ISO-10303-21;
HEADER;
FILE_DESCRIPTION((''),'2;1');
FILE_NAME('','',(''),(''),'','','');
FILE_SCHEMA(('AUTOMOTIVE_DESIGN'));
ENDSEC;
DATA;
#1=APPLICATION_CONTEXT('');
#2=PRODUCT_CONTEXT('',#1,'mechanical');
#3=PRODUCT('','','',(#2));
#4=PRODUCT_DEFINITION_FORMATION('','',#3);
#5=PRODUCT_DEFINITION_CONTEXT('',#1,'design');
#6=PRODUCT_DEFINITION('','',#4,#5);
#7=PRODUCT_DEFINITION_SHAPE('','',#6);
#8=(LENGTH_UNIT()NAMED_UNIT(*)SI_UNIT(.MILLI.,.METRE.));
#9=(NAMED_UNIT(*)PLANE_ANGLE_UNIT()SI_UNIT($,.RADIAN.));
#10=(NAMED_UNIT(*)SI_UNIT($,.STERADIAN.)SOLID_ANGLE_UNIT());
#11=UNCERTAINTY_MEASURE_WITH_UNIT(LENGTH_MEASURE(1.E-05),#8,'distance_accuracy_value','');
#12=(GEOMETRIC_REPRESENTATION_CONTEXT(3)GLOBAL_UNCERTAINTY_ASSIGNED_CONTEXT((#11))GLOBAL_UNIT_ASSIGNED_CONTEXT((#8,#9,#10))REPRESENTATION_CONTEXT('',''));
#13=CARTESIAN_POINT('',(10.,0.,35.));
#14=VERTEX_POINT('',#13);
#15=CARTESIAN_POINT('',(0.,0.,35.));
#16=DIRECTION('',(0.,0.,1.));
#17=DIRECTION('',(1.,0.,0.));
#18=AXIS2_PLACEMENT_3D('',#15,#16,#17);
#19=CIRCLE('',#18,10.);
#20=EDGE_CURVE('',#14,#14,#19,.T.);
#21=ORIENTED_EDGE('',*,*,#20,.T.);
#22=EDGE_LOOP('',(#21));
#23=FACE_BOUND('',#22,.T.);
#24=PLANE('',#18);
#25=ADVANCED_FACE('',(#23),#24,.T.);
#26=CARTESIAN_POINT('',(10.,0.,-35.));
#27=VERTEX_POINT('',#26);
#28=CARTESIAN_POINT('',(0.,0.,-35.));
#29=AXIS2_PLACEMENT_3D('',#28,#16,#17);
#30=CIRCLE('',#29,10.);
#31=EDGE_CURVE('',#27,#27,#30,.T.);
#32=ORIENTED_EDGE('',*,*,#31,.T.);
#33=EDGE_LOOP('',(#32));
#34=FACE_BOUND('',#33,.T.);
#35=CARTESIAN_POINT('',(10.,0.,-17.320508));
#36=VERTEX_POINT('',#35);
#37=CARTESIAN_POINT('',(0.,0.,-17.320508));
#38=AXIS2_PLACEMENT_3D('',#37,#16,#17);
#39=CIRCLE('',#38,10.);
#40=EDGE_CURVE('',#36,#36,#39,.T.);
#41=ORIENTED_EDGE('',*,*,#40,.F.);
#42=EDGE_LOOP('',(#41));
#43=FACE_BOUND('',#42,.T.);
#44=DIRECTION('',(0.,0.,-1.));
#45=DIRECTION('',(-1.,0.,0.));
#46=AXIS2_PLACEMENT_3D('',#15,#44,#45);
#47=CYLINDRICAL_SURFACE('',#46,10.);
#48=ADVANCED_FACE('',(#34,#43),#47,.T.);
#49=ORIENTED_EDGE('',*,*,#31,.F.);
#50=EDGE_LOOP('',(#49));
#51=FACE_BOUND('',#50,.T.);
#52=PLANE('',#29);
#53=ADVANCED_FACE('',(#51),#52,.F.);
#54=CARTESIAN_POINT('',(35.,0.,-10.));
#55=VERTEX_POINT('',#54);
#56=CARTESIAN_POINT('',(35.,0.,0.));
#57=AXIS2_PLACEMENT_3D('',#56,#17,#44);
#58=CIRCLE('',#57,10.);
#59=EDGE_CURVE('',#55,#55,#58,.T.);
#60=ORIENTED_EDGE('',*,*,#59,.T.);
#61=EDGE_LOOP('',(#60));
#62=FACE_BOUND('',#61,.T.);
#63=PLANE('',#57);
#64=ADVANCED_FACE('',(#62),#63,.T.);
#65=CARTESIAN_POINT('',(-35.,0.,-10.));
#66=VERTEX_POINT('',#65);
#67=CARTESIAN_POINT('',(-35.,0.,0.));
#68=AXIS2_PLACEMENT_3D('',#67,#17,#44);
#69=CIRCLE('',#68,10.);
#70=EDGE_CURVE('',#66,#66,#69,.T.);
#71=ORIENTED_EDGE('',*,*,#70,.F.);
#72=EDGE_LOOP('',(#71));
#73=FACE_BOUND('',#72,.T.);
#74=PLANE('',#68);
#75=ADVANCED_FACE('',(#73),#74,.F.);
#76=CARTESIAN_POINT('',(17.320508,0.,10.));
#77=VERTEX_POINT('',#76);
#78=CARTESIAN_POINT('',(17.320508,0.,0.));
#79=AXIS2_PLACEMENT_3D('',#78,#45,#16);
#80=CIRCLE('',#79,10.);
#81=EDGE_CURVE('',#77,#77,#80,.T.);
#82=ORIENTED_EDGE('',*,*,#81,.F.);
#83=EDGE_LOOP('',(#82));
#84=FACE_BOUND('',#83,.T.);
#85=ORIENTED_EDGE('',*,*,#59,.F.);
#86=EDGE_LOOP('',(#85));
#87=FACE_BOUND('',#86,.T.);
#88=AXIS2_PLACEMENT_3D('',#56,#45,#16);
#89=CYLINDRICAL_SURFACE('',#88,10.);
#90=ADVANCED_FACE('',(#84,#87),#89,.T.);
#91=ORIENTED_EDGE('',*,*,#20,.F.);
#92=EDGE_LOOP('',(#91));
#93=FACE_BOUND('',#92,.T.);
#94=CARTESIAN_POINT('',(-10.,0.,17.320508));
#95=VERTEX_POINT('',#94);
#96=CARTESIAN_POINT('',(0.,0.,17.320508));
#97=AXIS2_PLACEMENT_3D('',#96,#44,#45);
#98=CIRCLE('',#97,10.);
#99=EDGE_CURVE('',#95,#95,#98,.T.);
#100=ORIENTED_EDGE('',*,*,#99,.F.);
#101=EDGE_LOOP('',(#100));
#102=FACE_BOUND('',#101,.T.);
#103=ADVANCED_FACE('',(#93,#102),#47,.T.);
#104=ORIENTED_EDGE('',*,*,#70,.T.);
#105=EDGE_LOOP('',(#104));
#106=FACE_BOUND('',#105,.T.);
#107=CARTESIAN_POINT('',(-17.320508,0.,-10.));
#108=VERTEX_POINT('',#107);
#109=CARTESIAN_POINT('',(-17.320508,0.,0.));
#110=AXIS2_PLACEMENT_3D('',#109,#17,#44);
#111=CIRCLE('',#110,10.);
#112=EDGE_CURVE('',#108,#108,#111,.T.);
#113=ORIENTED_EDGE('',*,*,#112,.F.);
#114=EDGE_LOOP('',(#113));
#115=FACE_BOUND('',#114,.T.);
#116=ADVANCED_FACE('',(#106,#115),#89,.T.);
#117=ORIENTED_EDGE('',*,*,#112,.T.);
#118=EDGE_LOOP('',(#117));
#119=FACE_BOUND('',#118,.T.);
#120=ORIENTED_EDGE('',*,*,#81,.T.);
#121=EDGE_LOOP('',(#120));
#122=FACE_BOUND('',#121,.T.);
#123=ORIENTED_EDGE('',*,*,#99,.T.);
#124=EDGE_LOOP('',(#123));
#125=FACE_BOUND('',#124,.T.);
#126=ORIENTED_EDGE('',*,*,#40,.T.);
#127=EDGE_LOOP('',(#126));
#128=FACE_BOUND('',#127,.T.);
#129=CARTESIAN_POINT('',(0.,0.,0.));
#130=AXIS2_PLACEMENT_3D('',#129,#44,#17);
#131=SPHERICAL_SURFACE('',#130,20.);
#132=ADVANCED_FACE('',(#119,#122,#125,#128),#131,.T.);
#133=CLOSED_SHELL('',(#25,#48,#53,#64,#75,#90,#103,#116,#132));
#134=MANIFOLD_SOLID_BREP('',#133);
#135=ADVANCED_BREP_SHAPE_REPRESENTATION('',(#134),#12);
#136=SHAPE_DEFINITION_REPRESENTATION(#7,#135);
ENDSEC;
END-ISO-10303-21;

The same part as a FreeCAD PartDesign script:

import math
import FreeCAD as App
import Part
import Sketcher

V = App.Vector

doc = App.newDocument("Part")
body = doc.addObject("PartDesign::Body", "Body")

sketch1 = doc.addObject("Sketcher::SketchObject", "Sketch")
body.addObject(sketch1)
sketch1.AttachmentSupport = (doc.XZ_Plane, [""])
sketch1.MapMode = "FlatFace"
sketch1.addGeometry([
    Part.LineSegment(V(0, 20, 0), V(0, -20, 0)),
    Part.ArcOfCircle(Part.Circle(V(0, 0, 0), V(0, 0, 1), 20), math.radians(90), math.radians(270)),
], False)
sketch1.addConstraint([
    Sketcher.Constraint("Coincident", 0, 1, 1, 1),
    Sketcher.Constraint("Coincident", 1, 2, 0, 2),
    Sketcher.Constraint("Vertical", 0),
    Sketcher.Constraint("Coincident", 1, 3, -1, 1),
    Sketcher.Constraint("PointOnObject", 0, 1, -2),
    Sketcher.Constraint("Radius", 1, 20.0),
])
revolution = doc.addObject("PartDesign::Revolution", "Revolution")
body.addObject(revolution)
revolution.Profile = sketch1
revolution.ReferenceAxis = (sketch1, ["V_Axis"])
revolution.Angle = 360
body2 = doc.addObject("PartDesign::Body", "Body001")

sketch2 = doc.addObject("Sketcher::SketchObject", "Sketch001")
body2.addObject(sketch2)
sketch2.AttachmentSupport = (doc.getObject("XY_Plane001"), [""])
sketch2.MapMode = "FlatFace"
sketch2.addGeometry(Part.Circle(V(0, 0, 0), V(0, 0, 1), 10), False)
sketch2.addConstraint([
    Sketcher.Constraint("Coincident", 0, 3, -1, 1),
    Sketcher.Constraint("Diameter", 0, 20.0),
])
pad1 = doc.addObject("PartDesign::Pad", "Pad")
body2.addObject(pad1)
pad1.Profile = sketch2
pad1.Length = 70
pad1.Midplane = True
doc.recompute()

boolean = doc.addObject("PartDesign::Boolean", "Boolean")
body.addObject(boolean)
boolean.Type = "Fuse"
boolean.addObjects([body2])

sketch3 = doc.addObject("Sketcher::SketchObject", "Sketch002")
body.addObject(sketch3)
sketch3.AttachmentSupport = (doc.YZ_Plane, [""])
sketch3.MapMode = "FlatFace"
sketch3.addGeometry(Part.Circle(V(0, 0, 0), V(0, 0, 1), 10), False)
sketch3.addConstraint([
    Sketcher.Constraint("Coincident", 0, 3, -1, 1),
    Sketcher.Constraint("Diameter", 0, 20.0),
])
pad2 = doc.addObject("PartDesign::Pad", "Pad001")
body.addObject(pad2)
pad2.Profile = sketch3
pad2.Length = 70
pad2.Midplane = True

doc.recompute()
